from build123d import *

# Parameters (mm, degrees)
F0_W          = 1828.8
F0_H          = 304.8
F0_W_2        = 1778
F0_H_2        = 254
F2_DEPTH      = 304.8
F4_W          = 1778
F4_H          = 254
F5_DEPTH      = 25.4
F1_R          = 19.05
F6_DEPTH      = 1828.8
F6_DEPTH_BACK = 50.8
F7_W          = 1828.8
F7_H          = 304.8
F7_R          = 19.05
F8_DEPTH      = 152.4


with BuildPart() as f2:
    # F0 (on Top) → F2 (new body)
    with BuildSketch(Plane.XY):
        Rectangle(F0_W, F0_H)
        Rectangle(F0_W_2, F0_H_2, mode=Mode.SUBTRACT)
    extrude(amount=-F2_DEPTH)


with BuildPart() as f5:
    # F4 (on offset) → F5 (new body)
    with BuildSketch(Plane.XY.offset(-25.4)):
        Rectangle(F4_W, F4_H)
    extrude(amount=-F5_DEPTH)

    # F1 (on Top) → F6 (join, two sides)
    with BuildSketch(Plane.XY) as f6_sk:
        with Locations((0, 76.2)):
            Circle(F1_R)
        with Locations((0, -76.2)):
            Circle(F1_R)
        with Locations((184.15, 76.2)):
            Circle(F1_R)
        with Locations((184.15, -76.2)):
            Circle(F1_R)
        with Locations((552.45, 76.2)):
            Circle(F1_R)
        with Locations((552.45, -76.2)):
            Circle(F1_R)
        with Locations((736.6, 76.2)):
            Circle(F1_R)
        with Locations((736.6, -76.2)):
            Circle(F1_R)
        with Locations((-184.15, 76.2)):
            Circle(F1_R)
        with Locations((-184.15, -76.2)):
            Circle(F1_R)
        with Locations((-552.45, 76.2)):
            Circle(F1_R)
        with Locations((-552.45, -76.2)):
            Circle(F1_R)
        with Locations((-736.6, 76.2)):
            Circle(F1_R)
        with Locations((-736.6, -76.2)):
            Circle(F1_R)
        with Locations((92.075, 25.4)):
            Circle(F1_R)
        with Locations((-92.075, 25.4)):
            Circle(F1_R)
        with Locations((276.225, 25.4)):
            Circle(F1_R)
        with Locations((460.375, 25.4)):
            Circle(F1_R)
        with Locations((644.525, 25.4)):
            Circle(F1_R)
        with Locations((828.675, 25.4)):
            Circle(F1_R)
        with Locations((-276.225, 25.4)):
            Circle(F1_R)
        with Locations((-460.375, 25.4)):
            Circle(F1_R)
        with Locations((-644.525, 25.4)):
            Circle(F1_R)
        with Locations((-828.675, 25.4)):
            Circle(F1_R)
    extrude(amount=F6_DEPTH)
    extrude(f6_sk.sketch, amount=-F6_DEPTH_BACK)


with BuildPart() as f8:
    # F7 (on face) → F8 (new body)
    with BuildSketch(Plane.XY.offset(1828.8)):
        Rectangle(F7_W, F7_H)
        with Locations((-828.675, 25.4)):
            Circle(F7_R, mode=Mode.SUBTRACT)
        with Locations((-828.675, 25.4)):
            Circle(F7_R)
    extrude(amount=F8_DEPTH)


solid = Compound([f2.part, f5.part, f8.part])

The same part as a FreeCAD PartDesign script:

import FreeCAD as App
import Part
import Sketcher
from FreeCAD import Vector
Q = App.Units.Quantity

doc = App.newDocument("Part")
body = doc.addObject("PartDesign::Body", "Body")

sketch1 = body.newObject("Sketcher::SketchObject", "Sketch")
sketch1.AttachmentSupport = (doc.getObject("XY_Plane"), [""])
sketch1.MapMode = "FlatFace"
sketch1.addGeometry([
    Part.LineSegment(Vector(-914, 152, 0), Vector(-914, -152, 0)),
    Part.LineSegment(Vector(-914, -152, 0), Vector(914, -152, 0)),
    Part.LineSegment(Vector(914, -152, 0), Vector(914, 152, 0)),
    Part.LineSegment(Vector(914, 152, 0), Vector(-914, 152, 0)),
    Part.LineSegment(Vector(889, -127, 0), Vector(-889, -127, 0)),
    Part.LineSegment(Vector(-889, -127, 0), Vector(-889, 127, 0)),
    Part.LineSegment(Vector(-889, 127, 0), Vector(889, 127, 0)),
    Part.LineSegment(Vector(889, 127, 0), Vector(889, -127, 0)),
], False)
sketch1.addConstraint([
    Sketcher.Constraint("Coincident", 0, 2, 1, 1),
    Sketcher.Constraint("Coincident", 1, 2, 2, 1),
    Sketcher.Constraint("Coincident", 2, 2, 3, 1),
    Sketcher.Constraint("Coincident", 3, 2, 0, 1),
    Sketcher.Constraint("Coincident", 4, 2, 5, 1),
    Sketcher.Constraint("Coincident", 5, 2, 6, 1),
    Sketcher.Constraint("Coincident", 6, 2, 7, 1),
    Sketcher.Constraint("Coincident", 7, 2, 4, 1),
    Sketcher.Constraint("Vertical", 0),
    Sketcher.Constraint("Horizontal", 1),
    Sketcher.Constraint("Vertical", 2),
    Sketcher.Constraint("Horizontal", 3),
    Sketcher.Constraint("Horizontal", 4),
    Sketcher.Constraint("Vertical", 5),
    Sketcher.Constraint("Horizontal", 6),
    Sketcher.Constraint("Vertical", 7),
    Sketcher.Constraint("Symmetric", 0, 2, 2, 2, -1, 1),
    Sketcher.Constraint("Symmetric", 4, 2, 6, 2, -1, 1),
    Sketcher.Constraint("DistanceX", 1, 1, 1, 2, Q("72 in")),
    Sketcher.Constraint("DistanceX", 4, 2, 4, 1, Q("70 in")),
    Sketcher.Constraint("DistanceY", 0, 2, 0, 1, Q("12 in")),
    Sketcher.Constraint("DistanceY", 5, 1, 5, 2, Q("10 in")),
])
pad1 = body.newObject("PartDesign::Pad", "Pad")
pad1.Profile = sketch1
pad1.Length = Q("12 in")
pad1.Reversed = True
body2 = doc.addObject("PartDesign::Body", "Body001")

sketch2 = body2.newObject("Sketcher::SketchObject", "Sketch001")
sketch2.AttachmentSupport = (doc.getObject("XY_Plane001"), [""])
sketch2.MapMode = "FlatFace"
sketch2.AttachmentOffset = App.Placement(Vector(0, 0, -1 * 25.4), App.Rotation())
sketch2.addGeometry([
    Part.LineSegment(Vector(-889, 127, 0), Vector(-889, -127, 0)),
    Part.LineSegment(Vector(-889, -127, 0), Vector(889, -127, 0)),
    Part.LineSegment(Vector(889, -127, 0), Vector(889, 127, 0)),
    Part.LineSegment(Vector(889, 127, 0), Vector(-889, 127, 0)),
], False)
sketch2.addConstraint([
    Sketcher.Constraint("Coincident", 0, 2, 1, 1),
    Sketcher.Constraint("Coincident", 1, 2, 2, 1),
    Sketcher.Constraint("Coincident", 2, 2, 3, 1),
    Sketcher.Constraint("Coincident", 3, 2, 0, 1),
    Sketcher.Constraint("Vertical", 0),
    Sketcher.Constraint("Horizontal", 1),
    Sketcher.Constraint("Vertical", 2),
    Sketcher.Constraint("Horizontal", 3),
    Sketcher.Constraint("Symmetric", 0, 2, 2, 2, -1, 1),
    Sketcher.Constraint("DistanceX", 1, 1, 1, 2, Q("70 in")),
    Sketcher.Constraint("DistanceY", 0, 2, 0, 1, Q("10 in")),
])
pad2 = body2.newObject("PartDesign::Pad", "Pad001")
pad2.Profile = sketch2
pad2.Length = Q("1 in")
pad2.Reversed = True

sketch3 = body2.newObject("Sketcher::SketchObject", "Sketch002")
sketch3.AttachmentSupport = (doc.getObject("XY_Plane001"), [""])
sketch3.MapMode = "FlatFace"
sketch3.addGeometry([
    Part.Circle(Vector(0, 76, 0), Vector(0, 0, 1), 19),
    Part.Circle(Vector(0, -76, 0), Vector(0, 0, 1), 19),
    Part.Circle(Vector(184, 76, 0), Vector(0, 0, 1), 19),
    Part.Circle(Vector(184, -76, 0), Vector(0, 0, 1), 19),
    Part.Circle(Vector(552, 76, 0), Vector(0, 0, 1), 19),
    Part.Circle(Vector(552, -76, 0), Vector(0, 0, 1), 19),
    Part.Circle(Vector(737, 76, 0), Vector(0, 0, 1), 19),
    Part.Circle(Vector(737, -76, 0), Vector(0, 0, 1), 19),
    Part.Circle(Vector(-184, 76, 0), Vector(0, 0, 1), 19),
    Part.Circle(Vector(-184, -76, 0), Vector(0, 0, 1), 19),
    Part.Circle(Vector(-552, 76, 0), Vector(0, 0, 1), 19),
    Part.Circle(Vector(-552, -76, 0), Vector(0, 0, 1), 19),
    Part.Circle(Vector(-737, 76, 0), Vector(0, 0, 1), 19),
    Part.Circle(Vector(-737, -76, 0), Vector(0, 0, 1), 19),
    Part.Circle(Vector(92, 25, 0), Vector(0, 0, 1), 19),
    Part.Circle(Vector(-92, 25, 0), Vector(0, 0, 1), 19),
    Part.Circle(Vector(276, 25, 0), Vector(0, 0, 1), 19),
    Part.Circle(Vector(460, 25, 0), Vector(0, 0, 1), 19),
    Part.Circle(Vector(645, 25, 0), Vector(0, 0, 1), 19),
    Part.Circle(Vector(829, 25, 0), Vector(0, 0, 1), 19),
    Part.Circle(Vector(-276, 25, 0), Vector(0, 0, 1), 19),
    Part.Circle(Vector(-460, 25, 0), Vector(0, 0, 1), 19),
    Part.Circle(Vector(-645, 25, 0), Vector(0, 0, 1), 19),
    Part.Circle(Vector(-829, 25, 0), Vector(0, 0, 1), 19),
], False)
sketch3.addConstraint([
    Sketcher.Constraint("Equal", 0, 1),
    Sketcher.Constraint("Equal", 1, 2),
    Sketcher.Constraint("Equal", 2, 3),
    Sketcher.Constraint("Equal", 3, 4),
    Sketcher.Constraint("Equal", 4, 5),
    Sketcher.Constraint("Equal", 5, 6),
    Sketcher.Constraint("Equal", 6, 7),
    Sketcher.Constraint("Equal", 7, 8),
    Sketcher.Constraint("Equal", 8, 9),
    Sketcher.Constraint("Equal", 9, 10),
    Sketcher.Constraint("Equal", 10, 11),
    Sketcher.Constraint("Equal", 11, 12),
    Sketcher.Constraint("Equal", 12, 13),
    Sketcher.Constraint("Equal", 13, 14),
    Sketcher.Constraint("Equal", 14, 15),
    Sketcher.Constraint("Equal", 15, 16),
    Sketcher.Constraint("Equal", 16, 17),
    Sketcher.Constraint("Equal", 17, 18),
    Sketcher.Constraint("Equal", 18, 19),
    Sketcher.Constraint("Equal", 19, 20),
    Sketcher.Constraint("Equal", 20, 21),
    Sketcher.Constraint("Equal", 21, 22),
    Sketcher.Constraint("Equal", 22, 23),
    Sketcher.Constraint("Symmetric", 0, 3, 1, 3, -1, 1),
    Sketcher.Constraint("Symmetric", 3, 3, 8, 3, -1, 1),
    Sketcher.Constraint("Symmetric", 2, 3, 9, 3, -1, 1),
    Sketcher.Constraint("Symmetric", 5, 3, 10, 3, -1, 1),
    Sketcher.Constraint("Symmetric", 4, 3, 11, 3, -1, 1),
    Sketcher.Constraint("Symmetric", 7, 3, 12, 3, -1, 1),
    Sketcher.Constraint("Symmetric", 6, 3, 13, 3, -1, 1),
    Sketcher.Constraint("Symmetric", 2, 3, 8, 3, -2),
    Sketcher.Constraint("Symmetric", 4, 3, 10, 3, -2),
    Sketcher.Constraint("Symmetric", 6, 3, 12, 3, -2),
    Sketcher.Constraint("Symmetric", 14, 3, 15, 3, -2),
    Sketcher.Constraint("Symmetric", 16, 3, 20, 3, -2),
    Sketcher.Constraint("Symmetric", 17, 3, 21, 3, -2),
    Sketcher.Constraint("Symmetric", 18, 3, 22, 3, -2),
    Sketcher.Constraint("Symmetric", 19, 3, 23, 3, -2),
    Sketcher.Constraint("PointOnObject", 0, 3, -2),
    Sketcher.Constraint("Horizontal", 0, 3, 2, 3),
    Sketcher.Constraint("Horizontal", 2, 3, 4, 3),
    Sketcher.Constraint("Horizontal", 4, 3, 6, 3),
    Sketcher.Constraint("Horizontal", 15, 3, 16, 3),
    Sketcher.Constraint("Horizontal", 16, 3, 17, 3),
    Sketcher.Constraint("Horizontal", 17, 3, 18, 3),
    Sketcher.Constraint("Horizontal", 18, 3, 19, 3),
    Sketcher.Constraint("Diameter", 0, Q("1.5 in")),
    Sketcher.Constraint("DistanceY", -1, 1, 0, 3, Q("3 in")),
    Sketcher.Constraint("DistanceX", -1, 1, 6, 3, Q("29 in")),
    Sketcher.Constraint("DistanceY", -1, 1, 14, 3, Q("1 in")),
    Sketcher.Constraint("DistanceX", 8, 3, 4, 3, Q("29 in")),
    Sketcher.Constraint("DistanceX", 2, 3, 4, 3, Q("14.5 in")),
    Sketcher.Constraint("DistanceX", 15, 3, 14, 3, Q("7.25 in")),
    Sketcher.Constraint("DistanceX", 14, 3, 16, 3, Q("7.25 in")),
    Sketcher.Constraint("DistanceX", 16, 3, 17, 3, Q("7.25 in")),
    Sketcher.Constraint("DistanceX", 17, 3, 18, 3, Q("7.25 in")),
    Sketcher.Constraint("DistanceX", 18, 3, 19, 3, Q("7.25 in")),
])
pad3 = body2.newObject("PartDesign::Pad", "Pad002")
pad3.Profile = sketch3
pad3.Type = "TwoLengths"
pad3.Length = Q("72 in")
pad3.Length2 = Q("2 in")
body3 = doc.addObject("PartDesign::Body", "Body002")

sketch4 = body3.newObject("Sketcher::SketchObject", "Sketch003")
sketch4.AttachmentSupport = (doc.getObject("XY_Plane002"), [""])
sketch4.MapMode = "FlatFace"
sketch4.AttachmentOffset = App.Placement(Vector(0, 0, 72 * 25.4), App.Rotation())
sketch4.addGeometry([
    Part.LineSegment(Vector(-914, 152, 0), Vector(-914, -152, 0)),
    Part.LineSegment(Vector(-914, -152, 0), Vector(914, -152, 0)),
    Part.LineSegment(Vector(914, -152, 0), Vector(914, 152, 0)),
    Part.LineSegment(Vector(914, 152, 0), Vector(-914, 152, 0)),
], False)
sketch4.addConstraint([
    Sketcher.Constraint("Coincident", 0, 2, 1, 1),
    Sketcher.Constraint("Coincident", 1, 2, 2, 1),
    Sketcher.Constraint("Coincident", 2, 2, 3, 1),
    Sketcher.Constraint("Coincident", 3, 2, 0, 1),
    Sketcher.Constraint("Vertical", 0),
    Sketcher.Constraint("Horizontal", 1),
    Sketcher.Constraint("Vertical", 2),
    Sketcher.Constraint("Horizontal", 3),
    Sketcher.Constraint("Symmetric", 0, 2, 2, 2, -1, 1),
    Sketcher.Constraint("DistanceX", 1, 1, 1, 2, Q("72 in")),
    Sketcher.Constraint("DistanceY", 0, 2, 0, 1, Q("12 in")),
])
pad4 = body3.newObject("PartDesign::Pad", "Pad003")
pad4.Profile = sketch4
pad4.Length = Q("6 in")

doc.recompute()
